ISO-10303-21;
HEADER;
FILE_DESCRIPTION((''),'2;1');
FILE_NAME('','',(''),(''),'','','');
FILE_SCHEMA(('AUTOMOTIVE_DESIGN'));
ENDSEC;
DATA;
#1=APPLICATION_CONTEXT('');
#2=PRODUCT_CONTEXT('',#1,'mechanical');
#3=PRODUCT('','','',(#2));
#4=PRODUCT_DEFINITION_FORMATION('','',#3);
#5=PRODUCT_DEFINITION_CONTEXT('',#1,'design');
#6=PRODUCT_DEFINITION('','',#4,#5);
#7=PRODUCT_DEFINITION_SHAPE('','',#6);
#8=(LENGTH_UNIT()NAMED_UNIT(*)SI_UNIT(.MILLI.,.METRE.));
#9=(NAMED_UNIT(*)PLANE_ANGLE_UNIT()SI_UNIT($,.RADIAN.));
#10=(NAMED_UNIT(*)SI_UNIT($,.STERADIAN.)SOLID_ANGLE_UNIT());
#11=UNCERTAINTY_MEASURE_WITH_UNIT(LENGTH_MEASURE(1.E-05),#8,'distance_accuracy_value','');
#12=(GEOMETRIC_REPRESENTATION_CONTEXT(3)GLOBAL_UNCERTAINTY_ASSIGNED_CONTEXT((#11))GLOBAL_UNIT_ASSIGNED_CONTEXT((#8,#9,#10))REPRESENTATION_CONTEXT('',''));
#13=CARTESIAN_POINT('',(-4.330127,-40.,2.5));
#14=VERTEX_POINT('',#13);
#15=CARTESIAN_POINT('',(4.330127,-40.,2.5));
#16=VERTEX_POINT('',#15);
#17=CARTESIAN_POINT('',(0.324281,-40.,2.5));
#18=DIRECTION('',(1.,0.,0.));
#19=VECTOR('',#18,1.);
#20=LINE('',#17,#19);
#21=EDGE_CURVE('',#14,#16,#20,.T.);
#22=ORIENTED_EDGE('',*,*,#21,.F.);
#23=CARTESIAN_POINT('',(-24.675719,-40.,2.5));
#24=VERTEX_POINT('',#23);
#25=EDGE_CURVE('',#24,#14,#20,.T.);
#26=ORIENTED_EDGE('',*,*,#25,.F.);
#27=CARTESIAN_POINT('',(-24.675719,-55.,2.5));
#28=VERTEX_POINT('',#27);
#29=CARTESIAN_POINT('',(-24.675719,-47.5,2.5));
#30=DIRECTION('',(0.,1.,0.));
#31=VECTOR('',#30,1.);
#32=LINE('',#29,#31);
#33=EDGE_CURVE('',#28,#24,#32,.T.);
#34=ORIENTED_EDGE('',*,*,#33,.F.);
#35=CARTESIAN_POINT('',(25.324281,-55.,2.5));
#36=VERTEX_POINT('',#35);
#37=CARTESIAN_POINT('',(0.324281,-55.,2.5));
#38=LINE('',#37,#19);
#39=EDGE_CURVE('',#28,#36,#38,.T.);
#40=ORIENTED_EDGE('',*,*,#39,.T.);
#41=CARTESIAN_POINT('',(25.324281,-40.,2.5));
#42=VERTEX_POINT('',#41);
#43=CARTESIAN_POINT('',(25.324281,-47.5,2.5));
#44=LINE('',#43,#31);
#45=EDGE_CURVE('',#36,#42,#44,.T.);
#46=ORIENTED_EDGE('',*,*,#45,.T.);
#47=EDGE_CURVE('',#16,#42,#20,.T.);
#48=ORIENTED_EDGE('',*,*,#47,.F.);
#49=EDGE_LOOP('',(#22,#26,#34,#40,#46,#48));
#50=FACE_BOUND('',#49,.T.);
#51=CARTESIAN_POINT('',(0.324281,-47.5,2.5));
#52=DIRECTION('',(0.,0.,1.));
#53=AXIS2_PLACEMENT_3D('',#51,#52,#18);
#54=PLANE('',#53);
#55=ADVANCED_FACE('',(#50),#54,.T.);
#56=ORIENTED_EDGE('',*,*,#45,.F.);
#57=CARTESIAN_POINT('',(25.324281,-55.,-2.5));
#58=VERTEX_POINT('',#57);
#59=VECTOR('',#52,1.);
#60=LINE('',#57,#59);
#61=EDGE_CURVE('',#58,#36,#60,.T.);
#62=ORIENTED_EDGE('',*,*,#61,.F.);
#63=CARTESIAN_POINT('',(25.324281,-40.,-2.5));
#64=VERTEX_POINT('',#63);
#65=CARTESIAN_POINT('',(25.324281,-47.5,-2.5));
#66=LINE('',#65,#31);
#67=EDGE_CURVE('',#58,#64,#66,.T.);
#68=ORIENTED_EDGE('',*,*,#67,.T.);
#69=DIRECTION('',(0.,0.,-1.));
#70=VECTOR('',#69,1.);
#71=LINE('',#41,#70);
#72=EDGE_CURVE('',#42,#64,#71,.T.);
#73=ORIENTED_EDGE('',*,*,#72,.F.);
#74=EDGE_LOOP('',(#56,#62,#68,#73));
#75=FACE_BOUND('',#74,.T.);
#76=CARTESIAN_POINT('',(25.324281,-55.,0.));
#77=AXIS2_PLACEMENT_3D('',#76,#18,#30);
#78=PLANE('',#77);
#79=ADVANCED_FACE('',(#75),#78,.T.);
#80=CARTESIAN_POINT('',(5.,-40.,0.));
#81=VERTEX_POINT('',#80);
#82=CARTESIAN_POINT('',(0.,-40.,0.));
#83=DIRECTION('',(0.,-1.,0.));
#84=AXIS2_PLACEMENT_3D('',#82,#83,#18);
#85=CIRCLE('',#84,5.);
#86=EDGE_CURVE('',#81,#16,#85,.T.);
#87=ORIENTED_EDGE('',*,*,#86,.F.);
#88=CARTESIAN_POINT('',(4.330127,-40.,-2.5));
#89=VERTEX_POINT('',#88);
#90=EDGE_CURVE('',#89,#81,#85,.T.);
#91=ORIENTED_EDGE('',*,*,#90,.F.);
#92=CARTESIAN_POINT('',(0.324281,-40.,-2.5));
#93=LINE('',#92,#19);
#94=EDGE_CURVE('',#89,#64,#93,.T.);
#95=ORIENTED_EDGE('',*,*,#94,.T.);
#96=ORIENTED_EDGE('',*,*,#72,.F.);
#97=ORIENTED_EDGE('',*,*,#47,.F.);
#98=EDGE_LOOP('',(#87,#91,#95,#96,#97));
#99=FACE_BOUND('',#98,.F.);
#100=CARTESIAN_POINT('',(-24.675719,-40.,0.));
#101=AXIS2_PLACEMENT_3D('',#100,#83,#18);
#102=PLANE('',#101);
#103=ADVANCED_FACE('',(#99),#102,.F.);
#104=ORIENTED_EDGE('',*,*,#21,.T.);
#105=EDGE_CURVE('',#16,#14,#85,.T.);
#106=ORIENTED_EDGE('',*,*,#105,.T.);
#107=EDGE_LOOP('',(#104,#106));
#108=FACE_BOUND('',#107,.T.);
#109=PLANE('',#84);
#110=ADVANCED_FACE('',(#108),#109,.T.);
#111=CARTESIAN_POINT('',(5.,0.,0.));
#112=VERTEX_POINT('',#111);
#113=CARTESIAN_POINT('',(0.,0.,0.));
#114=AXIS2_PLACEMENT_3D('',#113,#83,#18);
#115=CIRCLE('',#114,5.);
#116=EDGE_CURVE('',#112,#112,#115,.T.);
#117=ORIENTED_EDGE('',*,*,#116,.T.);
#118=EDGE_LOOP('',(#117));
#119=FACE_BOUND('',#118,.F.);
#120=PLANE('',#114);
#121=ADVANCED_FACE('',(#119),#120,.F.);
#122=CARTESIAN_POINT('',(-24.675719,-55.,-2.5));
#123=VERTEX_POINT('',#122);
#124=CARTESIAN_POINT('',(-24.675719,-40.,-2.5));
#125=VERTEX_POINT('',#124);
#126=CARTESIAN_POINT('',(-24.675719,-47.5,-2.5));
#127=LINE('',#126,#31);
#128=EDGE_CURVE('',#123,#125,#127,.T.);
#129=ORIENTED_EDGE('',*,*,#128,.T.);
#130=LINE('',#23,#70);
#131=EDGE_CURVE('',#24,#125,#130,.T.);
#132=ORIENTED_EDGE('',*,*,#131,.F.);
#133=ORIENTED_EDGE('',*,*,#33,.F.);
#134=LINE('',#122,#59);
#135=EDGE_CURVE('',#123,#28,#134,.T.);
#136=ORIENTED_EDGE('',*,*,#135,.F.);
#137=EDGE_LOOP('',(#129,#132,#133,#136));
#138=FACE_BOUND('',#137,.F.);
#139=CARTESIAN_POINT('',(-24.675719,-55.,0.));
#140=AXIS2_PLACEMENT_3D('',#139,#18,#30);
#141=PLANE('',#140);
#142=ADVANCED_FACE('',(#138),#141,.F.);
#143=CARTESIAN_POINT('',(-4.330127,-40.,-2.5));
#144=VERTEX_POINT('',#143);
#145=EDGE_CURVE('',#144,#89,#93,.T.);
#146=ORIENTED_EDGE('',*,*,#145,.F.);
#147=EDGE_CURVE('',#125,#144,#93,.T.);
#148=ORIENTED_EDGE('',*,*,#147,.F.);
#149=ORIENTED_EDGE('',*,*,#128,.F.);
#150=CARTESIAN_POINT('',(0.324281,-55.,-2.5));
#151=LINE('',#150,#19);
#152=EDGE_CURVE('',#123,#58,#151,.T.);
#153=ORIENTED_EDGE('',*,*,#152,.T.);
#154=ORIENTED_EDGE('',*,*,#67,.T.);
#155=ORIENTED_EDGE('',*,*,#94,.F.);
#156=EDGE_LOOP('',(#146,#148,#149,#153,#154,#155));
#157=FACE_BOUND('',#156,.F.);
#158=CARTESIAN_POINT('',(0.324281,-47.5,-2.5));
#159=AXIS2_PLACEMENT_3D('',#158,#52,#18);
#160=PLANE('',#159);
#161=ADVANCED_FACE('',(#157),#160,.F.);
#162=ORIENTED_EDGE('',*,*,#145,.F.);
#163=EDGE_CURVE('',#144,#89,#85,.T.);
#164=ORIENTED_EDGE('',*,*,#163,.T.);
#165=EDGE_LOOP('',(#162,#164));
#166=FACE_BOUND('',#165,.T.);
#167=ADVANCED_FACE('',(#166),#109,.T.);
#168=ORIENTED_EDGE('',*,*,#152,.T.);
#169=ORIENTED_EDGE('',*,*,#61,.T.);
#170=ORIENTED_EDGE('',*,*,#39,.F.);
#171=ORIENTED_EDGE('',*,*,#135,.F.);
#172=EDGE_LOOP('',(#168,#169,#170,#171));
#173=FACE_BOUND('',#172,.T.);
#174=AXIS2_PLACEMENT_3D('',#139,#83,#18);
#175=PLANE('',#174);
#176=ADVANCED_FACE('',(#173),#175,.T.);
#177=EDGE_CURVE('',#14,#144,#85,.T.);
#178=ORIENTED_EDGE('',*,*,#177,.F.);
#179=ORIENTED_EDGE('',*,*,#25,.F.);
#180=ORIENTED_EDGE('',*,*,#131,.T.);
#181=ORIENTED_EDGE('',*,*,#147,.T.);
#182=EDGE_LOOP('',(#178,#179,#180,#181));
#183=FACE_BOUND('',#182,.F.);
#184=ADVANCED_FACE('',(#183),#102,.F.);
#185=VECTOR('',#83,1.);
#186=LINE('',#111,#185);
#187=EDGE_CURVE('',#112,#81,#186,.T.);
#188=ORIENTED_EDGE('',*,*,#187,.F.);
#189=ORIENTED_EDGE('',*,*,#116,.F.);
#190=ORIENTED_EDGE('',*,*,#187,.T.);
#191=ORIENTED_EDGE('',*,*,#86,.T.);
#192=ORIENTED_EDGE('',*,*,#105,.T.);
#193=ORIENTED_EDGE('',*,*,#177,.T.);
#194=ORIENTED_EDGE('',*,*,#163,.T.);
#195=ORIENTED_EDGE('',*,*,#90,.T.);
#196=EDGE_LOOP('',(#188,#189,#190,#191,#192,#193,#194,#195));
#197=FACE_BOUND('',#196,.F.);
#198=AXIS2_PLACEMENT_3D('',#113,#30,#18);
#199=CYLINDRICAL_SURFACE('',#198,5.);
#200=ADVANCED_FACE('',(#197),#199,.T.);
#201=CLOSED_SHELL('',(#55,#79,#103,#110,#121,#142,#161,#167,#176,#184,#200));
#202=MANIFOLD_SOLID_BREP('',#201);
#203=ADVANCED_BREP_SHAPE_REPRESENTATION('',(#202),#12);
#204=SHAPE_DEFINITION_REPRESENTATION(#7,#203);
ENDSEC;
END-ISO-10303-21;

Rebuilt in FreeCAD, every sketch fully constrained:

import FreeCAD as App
import Part
import Sketcher
from FreeCAD import Vector
Q = App.Units.Quantity

doc = App.newDocument("Part")
params = doc.addObject("Spreadsheet::Sheet", "Params")
for row, (alias, value) in enumerate([
    ("sketch1_diameter", "10 mm"),
    ("pad1_length", "40 mm"),
    ("sketch2_width", "50 mm"),
    ("sketch2_height", "15 mm"),
    ("pad2_length", "5 mm"),
], start=1):
    params.set(f"A{row}", alias)
    params.set(f"B{row}", "=" + value)
    params.setAlias(f"B{row}", alias)

body = doc.addObject("PartDesign::Body", "Body")

# Sketch on XZ plane
sketch1 = doc.addObject("Sketcher::SketchObject", "Sketch")
body.addObject(sketch1)
sketch1.AttachmentSupport = (doc.XZ_Plane, [""])
sketch1.MapMode = "FlatFace"
sketch1.addGeometry(Part.Circle(Vector(0, 0, 0), Vector(0, 0, 1), 5), False)
sketch1.addConstraint([
    Sketcher.Constraint("Coincident", 0, 3, -1, 1),
    Sketcher.Constraint("Diameter", 0, Q("10 mm")),
])
sketch1.setExpression("Constraints[1]", "Params.sketch1_diameter")
pad1 = doc.addObject("PartDesign::Pad", "Pad")
body.addObject(pad1)
pad1.Profile = sketch1
pad1.setExpression("Length", "Params.pad1_length")

# Sketch on XY plane
sketch2 = doc.addObject("Sketcher::SketchObject", "Sketch001")
body.addObject(sketch2)
sketch2.AttachmentSupport = (doc.XY_Plane, [""])
sketch2.MapMode = "FlatFace"
sketch2.addGeometry([
    Part.LineSegment(Vector(-24.675719, -40, 0), Vector(-24.675719, -55, 0)),
    Part.LineSegment(Vector(-24.675719, -55, 0), Vector(25.324281, -55, 0)),
    Part.LineSegment(Vector(25.324281, -55, 0), Vector(25.324281, -40, 0)),
    Part.LineSegment(Vector(25.324281, -40, 0), Vector(-24.675719, -40, 0)),
], False)
sketch2.addConstraint([
    Sketcher.Constraint("Coincident", 0, 2, 1, 1),
    Sketcher.Constraint("Coincident", 1, 2, 2, 1),
    Sketcher.Constraint("Coincident", 2, 2, 3, 1),
    Sketcher.Constraint("Coincident", 3, 2, 0, 1),
    Sketcher.Constraint("Vertical", 0),
    Sketcher.Constraint("Horizontal", 1),
    Sketcher.Constraint("Vertical", 2),
    Sketcher.Constraint("Horizontal", 3),
    Sketcher.Constraint("DistanceX", 1, 1, 1, 2, Q("50 mm")),
    Sketcher.Constraint("DistanceY", 0, 2, 0, 1, Q("15 mm")),
    Sketcher.Constraint("DistanceY", 0, 2, -1, 1, Q("55 mm")),
    Sketcher.Constraint("DistanceX", 0, 2, -1, 1, Q("24.675719 mm")),
])
sketch2.setExpression("Constraints[8]", "Params.sketch2_width")
sketch2.setExpression("Constraints[9]", "Params.sketch2_height")
pad2 = doc.addObject("PartDesign::Pad", "Pad001")
body.addObject(pad2)
pad2.Profile = sketch2
pad2.setExpression("Length", "Params.pad2_length")
pad2.Midplane = True

doc.recompute()
